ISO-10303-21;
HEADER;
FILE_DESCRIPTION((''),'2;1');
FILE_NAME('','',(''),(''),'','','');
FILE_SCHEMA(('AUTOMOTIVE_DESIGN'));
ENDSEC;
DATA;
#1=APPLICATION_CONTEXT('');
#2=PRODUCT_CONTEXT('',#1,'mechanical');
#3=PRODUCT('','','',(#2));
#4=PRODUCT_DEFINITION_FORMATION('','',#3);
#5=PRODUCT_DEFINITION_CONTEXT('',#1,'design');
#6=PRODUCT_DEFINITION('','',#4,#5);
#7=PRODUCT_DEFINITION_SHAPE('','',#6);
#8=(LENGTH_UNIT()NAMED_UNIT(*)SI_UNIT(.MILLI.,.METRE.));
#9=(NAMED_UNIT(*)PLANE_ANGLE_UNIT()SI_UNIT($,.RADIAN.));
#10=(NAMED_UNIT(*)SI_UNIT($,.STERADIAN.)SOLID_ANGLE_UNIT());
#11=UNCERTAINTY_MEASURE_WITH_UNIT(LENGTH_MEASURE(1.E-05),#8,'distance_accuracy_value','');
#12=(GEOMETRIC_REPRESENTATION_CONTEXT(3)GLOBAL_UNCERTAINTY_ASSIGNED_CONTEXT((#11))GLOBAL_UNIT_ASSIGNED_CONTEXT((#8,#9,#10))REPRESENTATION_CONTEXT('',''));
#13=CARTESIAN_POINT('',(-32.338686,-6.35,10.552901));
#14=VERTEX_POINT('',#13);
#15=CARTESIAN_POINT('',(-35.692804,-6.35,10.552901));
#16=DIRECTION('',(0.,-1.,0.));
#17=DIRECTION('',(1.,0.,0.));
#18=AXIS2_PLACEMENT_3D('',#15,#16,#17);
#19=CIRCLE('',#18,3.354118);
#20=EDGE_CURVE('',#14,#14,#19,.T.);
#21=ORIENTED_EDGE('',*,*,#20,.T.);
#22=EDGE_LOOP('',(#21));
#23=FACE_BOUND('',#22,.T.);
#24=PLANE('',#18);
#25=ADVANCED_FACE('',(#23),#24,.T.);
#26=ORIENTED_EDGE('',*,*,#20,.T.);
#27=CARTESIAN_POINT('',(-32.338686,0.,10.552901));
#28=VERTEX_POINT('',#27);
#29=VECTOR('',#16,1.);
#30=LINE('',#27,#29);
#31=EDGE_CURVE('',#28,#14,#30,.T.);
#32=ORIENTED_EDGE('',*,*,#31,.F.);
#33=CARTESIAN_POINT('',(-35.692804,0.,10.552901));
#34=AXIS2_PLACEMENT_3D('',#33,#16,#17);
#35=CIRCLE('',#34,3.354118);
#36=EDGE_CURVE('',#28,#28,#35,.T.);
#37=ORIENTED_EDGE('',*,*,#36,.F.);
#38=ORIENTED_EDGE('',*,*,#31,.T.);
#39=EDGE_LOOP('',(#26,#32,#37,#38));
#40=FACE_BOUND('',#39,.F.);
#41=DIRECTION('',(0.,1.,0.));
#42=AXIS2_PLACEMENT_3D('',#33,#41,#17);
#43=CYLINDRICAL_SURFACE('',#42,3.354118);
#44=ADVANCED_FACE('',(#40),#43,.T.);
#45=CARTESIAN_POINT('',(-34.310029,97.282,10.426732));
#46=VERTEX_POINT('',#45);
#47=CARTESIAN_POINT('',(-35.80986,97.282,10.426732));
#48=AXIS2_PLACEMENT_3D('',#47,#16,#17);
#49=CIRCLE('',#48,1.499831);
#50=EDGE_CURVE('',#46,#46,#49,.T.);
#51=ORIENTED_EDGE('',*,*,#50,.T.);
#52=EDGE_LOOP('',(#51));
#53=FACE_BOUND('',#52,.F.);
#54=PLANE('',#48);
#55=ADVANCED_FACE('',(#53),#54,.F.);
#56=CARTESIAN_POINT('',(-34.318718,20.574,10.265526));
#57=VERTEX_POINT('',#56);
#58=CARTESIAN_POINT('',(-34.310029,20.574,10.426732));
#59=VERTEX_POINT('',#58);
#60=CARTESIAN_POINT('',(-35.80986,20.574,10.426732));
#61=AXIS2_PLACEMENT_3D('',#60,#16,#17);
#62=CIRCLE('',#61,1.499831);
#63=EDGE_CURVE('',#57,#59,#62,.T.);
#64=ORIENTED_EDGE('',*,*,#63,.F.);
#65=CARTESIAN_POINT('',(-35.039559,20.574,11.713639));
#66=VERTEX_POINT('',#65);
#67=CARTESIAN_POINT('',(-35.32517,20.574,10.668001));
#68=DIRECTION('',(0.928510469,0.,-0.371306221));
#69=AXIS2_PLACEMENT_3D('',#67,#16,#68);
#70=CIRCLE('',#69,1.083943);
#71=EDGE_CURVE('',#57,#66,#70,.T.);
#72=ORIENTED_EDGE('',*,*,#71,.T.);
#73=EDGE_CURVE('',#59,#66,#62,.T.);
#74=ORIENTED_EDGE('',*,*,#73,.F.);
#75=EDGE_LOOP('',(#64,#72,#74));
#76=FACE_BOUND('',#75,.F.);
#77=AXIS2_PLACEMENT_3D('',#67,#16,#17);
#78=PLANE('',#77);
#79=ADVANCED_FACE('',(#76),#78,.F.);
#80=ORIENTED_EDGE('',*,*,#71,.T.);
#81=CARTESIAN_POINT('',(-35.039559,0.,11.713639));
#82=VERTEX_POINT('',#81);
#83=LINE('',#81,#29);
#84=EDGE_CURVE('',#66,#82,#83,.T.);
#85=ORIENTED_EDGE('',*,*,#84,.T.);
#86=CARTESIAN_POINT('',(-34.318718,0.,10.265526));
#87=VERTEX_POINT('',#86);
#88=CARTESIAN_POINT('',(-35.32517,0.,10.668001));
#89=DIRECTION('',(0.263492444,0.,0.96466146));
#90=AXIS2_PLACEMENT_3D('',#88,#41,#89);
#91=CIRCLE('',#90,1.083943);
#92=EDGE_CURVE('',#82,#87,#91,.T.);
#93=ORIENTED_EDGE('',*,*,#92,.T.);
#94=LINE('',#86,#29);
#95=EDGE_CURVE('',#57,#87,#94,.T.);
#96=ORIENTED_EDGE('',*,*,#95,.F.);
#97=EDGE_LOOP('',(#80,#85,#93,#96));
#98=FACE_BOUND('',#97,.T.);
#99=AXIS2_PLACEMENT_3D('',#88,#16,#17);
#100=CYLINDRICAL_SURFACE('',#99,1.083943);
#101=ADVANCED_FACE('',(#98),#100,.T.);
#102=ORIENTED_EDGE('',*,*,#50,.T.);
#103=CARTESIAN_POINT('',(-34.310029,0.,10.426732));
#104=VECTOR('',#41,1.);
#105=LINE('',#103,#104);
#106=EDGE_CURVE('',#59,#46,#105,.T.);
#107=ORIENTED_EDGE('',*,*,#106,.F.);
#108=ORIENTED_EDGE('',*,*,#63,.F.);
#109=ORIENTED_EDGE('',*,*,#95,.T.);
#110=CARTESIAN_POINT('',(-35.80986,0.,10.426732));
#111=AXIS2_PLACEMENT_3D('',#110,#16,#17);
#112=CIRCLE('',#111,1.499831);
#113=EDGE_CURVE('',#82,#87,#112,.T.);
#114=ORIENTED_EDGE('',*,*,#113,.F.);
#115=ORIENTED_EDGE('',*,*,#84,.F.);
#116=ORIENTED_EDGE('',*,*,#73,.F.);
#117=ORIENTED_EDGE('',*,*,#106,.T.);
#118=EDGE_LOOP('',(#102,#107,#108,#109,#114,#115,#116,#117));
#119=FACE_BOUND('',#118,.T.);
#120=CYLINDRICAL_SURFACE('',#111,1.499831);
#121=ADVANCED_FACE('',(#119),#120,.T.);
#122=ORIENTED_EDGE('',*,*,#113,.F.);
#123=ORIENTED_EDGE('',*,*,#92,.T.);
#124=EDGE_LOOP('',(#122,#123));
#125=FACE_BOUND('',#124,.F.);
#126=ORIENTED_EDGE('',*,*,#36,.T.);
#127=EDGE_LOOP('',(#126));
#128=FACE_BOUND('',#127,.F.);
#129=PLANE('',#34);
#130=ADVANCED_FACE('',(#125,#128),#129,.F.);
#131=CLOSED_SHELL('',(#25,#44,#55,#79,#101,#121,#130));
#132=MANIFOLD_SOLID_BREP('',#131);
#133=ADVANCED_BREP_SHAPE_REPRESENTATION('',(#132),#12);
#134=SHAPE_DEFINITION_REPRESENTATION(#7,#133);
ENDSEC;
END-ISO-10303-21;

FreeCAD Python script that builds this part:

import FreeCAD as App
import Part
import Sketcher

V = App.Vector
Q = App.Units.Quantity

doc = App.newDocument("Part")
body = doc.addObject("PartDesign::Body", "Body")

# Sketch on XZ plane
sketch1 = doc.addObject("Sketcher::SketchObject", "Sketch")
body.addObject(sketch1)
sketch1.AttachmentSupport = (doc.XZ_Plane, [""])
sketch1.MapMode = "FlatFace"
sketch1.addGeometry(Part.Circle(V(-35.692804, 10.552901, 0), V(0, 0, 1), 3.354118), False)
sketch1.addConstraint(Sketcher.Constraint("Diameter", 0, 6.708236))
sketch1.addConstraint(Sketcher.Constraint("DistanceY", -1, 1, 0, 3, 10.552901))
sketch1.addConstraint(Sketcher.Constraint("DistanceX", 0, 3, -1, 1, 35.692804))
pad1 = doc.addObject("PartDesign::Pad", "Pad")
body.addObject(pad1)
pad1.Profile = sketch1
pad1.Length = Q("0.25 in")

# Sketch on XZ plane
sketch2 = doc.addObject("Sketcher::SketchObject", "Sketch001")
body.addObject(sketch2)
sketch2.AttachmentSupport = (doc.XZ_Plane, [""])
sketch2.MapMode = "FlatFace"
sketch2.addGeometry(Part.Circle(V(-35.80986, 10.426732, 0), V(0, 0, 1), 1.499831), False)
sketch2.addConstraint(Sketcher.Constraint("Diameter", 0, 2.999662))
sketch2.addConstraint(Sketcher.Constraint("DistanceX", 0, 3, -1, 1, 35.80986))
sketch2.addConstraint(Sketcher.Constraint("DistanceY", -1, 1, 0, 3, 10.426732))
pad2 = doc.addObject("PartDesign::Pad", "Pad001")
body.addObject(pad2)
pad2.Profile = sketch2
pad2.Length = Q("3.83 in")
pad2.Reversed = True

# Sketch on XZ plane
sketch3 = doc.addObject("Sketcher::SketchObject", "Sketch002")
body.addObject(sketch3)
sketch3.AttachmentSupport = (doc.XZ_Plane, [""])
sketch3.MapMode = "FlatFace"
sketch3.addGeometry(Part.Circle(V(-35.32517, 10.668001, 0), V(0, 0, 1), 1.083943), False)
sketch3.addConstraint(Sketcher.Constraint("DistanceY", -1, 1, 0, 3, Q("0.42 in")))
sketch3.addConstraint(Sketcher.Constraint("Diameter", 0, 2.167886))
sketch3.addConstraint(Sketcher.Constraint("DistanceX", 0, 3, -1, 1, 35.32517))
pad3 = doc.addObject("PartDesign::Pad", "Pad002")
body.addObject(pad3)
pad3.Profile = sketch3
pad3.Length = Q("0.81 in")
pad3.Reversed = True

doc.recompute()
